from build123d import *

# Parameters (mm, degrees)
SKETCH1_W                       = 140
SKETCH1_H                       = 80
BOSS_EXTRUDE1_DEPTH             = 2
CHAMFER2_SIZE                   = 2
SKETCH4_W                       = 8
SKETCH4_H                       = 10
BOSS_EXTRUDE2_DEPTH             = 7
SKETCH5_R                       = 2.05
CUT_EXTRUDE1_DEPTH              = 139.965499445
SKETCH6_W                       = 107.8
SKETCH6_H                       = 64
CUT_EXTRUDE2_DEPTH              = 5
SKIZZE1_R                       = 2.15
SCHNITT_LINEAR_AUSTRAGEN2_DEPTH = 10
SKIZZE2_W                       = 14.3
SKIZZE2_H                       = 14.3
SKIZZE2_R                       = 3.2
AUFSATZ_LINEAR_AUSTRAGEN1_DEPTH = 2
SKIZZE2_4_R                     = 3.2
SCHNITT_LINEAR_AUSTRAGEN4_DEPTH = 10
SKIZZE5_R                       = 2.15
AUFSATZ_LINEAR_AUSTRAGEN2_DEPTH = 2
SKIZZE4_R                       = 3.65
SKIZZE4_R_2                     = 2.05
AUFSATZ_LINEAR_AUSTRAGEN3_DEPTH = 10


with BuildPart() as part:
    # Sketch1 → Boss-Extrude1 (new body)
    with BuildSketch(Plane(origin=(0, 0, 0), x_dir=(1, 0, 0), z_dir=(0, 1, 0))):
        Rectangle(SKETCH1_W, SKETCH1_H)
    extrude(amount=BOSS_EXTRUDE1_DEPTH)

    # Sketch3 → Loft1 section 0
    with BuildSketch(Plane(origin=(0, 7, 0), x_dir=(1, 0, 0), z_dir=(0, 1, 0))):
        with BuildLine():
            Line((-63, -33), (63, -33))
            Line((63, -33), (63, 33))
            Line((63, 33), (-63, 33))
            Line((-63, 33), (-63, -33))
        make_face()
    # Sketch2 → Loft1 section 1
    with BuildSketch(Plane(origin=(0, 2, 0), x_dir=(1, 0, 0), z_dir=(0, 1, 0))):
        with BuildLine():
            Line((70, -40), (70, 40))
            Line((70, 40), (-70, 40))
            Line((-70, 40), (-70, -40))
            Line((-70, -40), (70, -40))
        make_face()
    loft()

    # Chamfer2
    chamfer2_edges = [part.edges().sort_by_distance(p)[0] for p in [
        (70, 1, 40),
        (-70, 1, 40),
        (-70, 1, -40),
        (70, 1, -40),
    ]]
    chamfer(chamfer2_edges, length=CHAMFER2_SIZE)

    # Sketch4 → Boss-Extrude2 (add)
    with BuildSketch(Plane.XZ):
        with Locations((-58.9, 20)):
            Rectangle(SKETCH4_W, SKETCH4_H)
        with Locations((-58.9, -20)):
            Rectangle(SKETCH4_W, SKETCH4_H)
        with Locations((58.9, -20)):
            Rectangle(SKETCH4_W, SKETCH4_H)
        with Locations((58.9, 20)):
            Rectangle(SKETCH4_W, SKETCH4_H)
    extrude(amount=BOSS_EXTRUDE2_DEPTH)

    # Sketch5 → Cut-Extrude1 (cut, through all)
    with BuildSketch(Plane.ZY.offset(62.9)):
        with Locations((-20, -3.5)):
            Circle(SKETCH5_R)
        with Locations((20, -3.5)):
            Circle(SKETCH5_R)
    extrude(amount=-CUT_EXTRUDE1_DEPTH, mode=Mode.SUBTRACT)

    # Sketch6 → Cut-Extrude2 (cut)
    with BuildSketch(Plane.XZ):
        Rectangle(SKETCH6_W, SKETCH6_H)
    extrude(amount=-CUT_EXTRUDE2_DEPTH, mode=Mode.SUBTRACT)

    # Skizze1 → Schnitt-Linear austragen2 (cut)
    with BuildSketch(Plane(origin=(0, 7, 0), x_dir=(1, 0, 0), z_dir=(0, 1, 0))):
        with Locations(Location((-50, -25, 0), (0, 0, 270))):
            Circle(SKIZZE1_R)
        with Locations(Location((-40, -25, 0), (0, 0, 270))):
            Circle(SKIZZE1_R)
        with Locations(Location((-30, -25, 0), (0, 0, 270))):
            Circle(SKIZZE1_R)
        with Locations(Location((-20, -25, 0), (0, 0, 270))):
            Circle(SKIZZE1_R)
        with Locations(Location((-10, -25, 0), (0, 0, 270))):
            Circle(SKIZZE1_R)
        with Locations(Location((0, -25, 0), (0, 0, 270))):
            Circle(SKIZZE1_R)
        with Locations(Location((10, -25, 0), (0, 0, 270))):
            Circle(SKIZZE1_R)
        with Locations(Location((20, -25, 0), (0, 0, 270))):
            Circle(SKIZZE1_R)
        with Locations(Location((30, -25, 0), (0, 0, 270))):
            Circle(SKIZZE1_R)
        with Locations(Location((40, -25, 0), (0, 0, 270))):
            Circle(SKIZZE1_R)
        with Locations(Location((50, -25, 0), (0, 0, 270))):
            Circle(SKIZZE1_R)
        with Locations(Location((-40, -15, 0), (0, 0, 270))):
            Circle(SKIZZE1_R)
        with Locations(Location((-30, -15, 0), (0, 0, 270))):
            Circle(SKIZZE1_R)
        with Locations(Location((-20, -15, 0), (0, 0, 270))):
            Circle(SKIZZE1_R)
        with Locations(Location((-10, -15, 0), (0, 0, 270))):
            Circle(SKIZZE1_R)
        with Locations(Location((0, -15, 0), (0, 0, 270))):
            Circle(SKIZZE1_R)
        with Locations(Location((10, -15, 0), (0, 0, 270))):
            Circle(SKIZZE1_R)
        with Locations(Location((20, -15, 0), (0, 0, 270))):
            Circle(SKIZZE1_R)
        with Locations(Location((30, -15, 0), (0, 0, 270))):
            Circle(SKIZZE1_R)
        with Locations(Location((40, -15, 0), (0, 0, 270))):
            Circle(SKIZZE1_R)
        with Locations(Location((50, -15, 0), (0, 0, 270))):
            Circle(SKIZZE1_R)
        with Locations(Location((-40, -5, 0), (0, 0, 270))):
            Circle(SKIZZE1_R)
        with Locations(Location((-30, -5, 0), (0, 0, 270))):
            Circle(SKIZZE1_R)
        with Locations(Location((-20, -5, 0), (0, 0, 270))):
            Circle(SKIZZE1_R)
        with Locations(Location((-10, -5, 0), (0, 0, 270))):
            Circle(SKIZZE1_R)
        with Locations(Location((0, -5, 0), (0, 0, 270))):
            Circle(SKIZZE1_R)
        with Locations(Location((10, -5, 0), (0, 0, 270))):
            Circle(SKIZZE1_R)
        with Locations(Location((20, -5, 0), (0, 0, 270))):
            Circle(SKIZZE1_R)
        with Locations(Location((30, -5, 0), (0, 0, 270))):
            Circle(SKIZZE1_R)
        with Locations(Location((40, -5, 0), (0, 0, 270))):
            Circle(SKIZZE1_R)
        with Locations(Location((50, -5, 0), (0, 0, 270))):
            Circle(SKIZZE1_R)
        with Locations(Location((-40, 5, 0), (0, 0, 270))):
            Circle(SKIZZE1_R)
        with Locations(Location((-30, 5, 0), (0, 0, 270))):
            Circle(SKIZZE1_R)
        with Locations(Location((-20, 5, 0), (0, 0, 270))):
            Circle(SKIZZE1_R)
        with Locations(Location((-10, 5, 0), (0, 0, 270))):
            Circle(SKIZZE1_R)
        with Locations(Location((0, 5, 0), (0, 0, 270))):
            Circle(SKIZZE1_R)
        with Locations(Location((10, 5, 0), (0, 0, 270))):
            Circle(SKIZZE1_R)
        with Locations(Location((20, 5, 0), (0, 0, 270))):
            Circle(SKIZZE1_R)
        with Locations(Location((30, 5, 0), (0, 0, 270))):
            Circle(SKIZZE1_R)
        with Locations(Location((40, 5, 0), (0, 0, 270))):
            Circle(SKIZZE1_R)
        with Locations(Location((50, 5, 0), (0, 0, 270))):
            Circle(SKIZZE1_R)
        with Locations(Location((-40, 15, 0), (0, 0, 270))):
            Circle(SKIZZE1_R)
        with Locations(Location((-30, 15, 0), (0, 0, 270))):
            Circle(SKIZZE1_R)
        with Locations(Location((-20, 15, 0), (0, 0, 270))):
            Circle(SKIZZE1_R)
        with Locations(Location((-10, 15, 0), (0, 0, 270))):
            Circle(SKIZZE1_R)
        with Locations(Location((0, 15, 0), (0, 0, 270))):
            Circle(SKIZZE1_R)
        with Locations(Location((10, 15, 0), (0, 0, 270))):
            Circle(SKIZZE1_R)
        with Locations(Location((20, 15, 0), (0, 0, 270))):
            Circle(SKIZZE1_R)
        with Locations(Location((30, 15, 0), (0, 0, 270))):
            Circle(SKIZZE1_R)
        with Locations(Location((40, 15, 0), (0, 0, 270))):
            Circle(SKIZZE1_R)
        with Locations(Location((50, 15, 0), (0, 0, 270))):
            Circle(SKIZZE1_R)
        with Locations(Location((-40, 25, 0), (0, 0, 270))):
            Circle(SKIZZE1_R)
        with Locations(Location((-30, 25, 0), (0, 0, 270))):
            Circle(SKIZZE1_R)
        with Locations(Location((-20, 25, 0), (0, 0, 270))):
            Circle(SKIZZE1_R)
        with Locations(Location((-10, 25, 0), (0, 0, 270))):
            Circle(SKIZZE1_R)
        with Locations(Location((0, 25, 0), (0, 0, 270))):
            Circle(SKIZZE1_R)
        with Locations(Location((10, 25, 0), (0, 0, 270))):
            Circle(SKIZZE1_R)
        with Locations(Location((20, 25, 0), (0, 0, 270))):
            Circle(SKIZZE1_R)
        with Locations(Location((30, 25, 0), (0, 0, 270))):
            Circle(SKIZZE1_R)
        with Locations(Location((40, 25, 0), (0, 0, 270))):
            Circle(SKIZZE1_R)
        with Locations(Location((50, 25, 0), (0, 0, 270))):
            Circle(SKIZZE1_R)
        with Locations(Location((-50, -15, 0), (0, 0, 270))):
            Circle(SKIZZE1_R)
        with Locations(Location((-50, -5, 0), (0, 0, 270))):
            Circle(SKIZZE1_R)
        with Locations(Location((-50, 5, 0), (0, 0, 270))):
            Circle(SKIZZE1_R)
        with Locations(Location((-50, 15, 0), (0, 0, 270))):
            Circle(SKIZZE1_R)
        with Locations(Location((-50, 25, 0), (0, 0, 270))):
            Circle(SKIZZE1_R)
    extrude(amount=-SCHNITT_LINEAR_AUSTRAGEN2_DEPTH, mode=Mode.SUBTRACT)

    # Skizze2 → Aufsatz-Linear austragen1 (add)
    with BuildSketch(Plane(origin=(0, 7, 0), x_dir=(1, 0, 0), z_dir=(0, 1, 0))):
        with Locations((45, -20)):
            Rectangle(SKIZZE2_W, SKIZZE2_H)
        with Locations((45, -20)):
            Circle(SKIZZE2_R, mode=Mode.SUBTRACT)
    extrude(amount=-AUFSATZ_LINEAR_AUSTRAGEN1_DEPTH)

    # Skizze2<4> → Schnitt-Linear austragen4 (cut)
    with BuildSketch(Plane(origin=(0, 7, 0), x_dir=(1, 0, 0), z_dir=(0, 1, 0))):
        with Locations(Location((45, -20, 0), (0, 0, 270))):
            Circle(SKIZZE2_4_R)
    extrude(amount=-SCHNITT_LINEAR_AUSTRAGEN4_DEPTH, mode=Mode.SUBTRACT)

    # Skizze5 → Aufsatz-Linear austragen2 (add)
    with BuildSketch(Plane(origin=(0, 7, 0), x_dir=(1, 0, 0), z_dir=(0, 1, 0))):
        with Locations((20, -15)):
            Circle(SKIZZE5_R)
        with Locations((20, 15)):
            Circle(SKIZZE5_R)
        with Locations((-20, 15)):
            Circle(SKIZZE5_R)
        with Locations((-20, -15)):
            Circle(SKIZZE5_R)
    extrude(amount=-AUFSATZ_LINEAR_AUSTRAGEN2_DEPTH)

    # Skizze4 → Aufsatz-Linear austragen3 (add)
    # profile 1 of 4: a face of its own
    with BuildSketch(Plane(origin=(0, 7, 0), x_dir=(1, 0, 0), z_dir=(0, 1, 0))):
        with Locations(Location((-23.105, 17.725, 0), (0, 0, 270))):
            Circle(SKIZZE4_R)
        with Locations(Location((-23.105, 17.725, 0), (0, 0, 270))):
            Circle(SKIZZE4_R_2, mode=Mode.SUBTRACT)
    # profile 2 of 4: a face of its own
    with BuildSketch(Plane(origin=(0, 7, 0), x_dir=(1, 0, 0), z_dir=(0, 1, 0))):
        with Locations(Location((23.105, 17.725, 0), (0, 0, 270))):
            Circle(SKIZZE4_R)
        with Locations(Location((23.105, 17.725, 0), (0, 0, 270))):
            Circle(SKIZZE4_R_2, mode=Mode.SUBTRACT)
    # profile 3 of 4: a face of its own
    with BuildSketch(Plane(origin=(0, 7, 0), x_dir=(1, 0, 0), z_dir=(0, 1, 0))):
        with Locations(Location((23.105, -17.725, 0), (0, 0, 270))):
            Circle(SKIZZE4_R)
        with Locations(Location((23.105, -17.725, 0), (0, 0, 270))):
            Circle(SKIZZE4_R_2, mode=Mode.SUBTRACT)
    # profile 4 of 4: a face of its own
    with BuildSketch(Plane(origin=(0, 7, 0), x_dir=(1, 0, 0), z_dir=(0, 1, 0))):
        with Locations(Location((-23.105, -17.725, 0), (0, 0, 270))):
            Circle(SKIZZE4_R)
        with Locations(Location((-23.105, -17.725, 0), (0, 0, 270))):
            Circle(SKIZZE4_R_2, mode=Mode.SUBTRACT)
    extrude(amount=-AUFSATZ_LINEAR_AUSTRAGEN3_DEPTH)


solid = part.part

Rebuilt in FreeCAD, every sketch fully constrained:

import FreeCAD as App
import Part
import Sketcher

V = App.Vector


def edges_at(feature, points):
    """Names of the edges that pass closest to the given points."""
    edges = feature.Shape.Edges
    near = lambda p: min(range(len(edges)), key=lambda i: edges[i].distToShape(Part.Vertex(*p))[0])
    return sorted({f"Edge{near(p) + 1}" for p in points})


def add_polygon(sketch, points):
    """Adds a closed chain of lines whose ends are joined by coincident constraints."""
    first, n = sketch.GeometryCount, len(points)
    for a, b in zip(points, points[1:] + points[:1]):
        sketch.addGeometry(Part.LineSegment(App.Vector(*a, 0), App.Vector(*b, 0)), False)
    for i in range(n):
        sketch.addConstraint(Sketcher.Constraint("Coincident", first + i, 2, first + (i + 1) % n, 1))

doc = App.newDocument("Part")
body = doc.addObject("PartDesign::Body", "Body")

sketch1 = body.newObject("Sketcher::SketchObject", "Sketch")
sketch1.AttachmentSupport = (doc.getObject("XZ_Plane"), [""])
sketch1.MapMode = "FlatFace"
add_polygon(sketch1, [(-70, -40), (-70, 40), (70, 40), (70, -40)])
sketch1.addConstraint([
    Sketcher.Constraint("Vertical", 0),
    Sketcher.Constraint("Horizontal", 1),
    Sketcher.Constraint("Vertical", 2),
    Sketcher.Constraint("Horizontal", 3),
    Sketcher.Constraint("Symmetric", 0, 2, 2, 2, -1, 1),
    Sketcher.Constraint("DistanceX", 1, 1, 1, 2, 140.0),
    Sketcher.Constraint("DistanceY", 0, 1, 0, 2, 80.0),
])
pad1 = body.newObject("PartDesign::Pad", "Pad")
pad1.Profile = sketch1
pad1.Length = 2
pad1.Reversed = True

sketch2 = body.newObject("Sketcher::SketchObject", "Sketch001")
sketch2.AttachmentSupport = (doc.getObject("XZ_Plane"), [""])
sketch2.MapMode = "FlatFace"
sketch2.AttachmentOffset = App.Placement(V(0, 0, -7), App.Rotation())
add_polygon(sketch2, [(-63, 33), (63, 33), (63, -33), (-63, -33)])
sketch2.addConstraint([
    Sketcher.Constraint("Horizontal", 0),
    Sketcher.Constraint("Vertical", 1),
    Sketcher.Constraint("Horizontal", 2),
    Sketcher.Constraint("Vertical", 3),
    Sketcher.Constraint("Symmetric", 0, 2, 2, 2, -1, 1),
    Sketcher.Constraint("DistanceX", 0, 1, 0, 2, 126.0),
    Sketcher.Constraint("DistanceY", 1, 2, 1, 1, 66.0),
])

sketch3 = body.newObject("Sketcher::SketchObject", "Sketch002")
sketch3.AttachmentSupport = (doc.getObject("XZ_Plane"), [""])
sketch3.MapMode = "FlatFace"
sketch3.AttachmentOffset = App.Placement(V(0, 0, -2), App.Rotation())
add_polygon(sketch3, [(70, 40), (70, -40), (-70, -40), (-70, 40)])
sketch3.addConstraint([
    Sketcher.Constraint("Vertical", 0),
    Sketcher.Constraint("Horizontal", 1),
    Sketcher.Constraint("Vertical", 2),
    Sketcher.Constraint("Horizontal", 3),
    Sketcher.Constraint("Symmetric", 0, 2, 2, 2, -1, 1),
    Sketcher.Constraint("DistanceX", 1, 2, 1, 1, 140.0),
    Sketcher.Constraint("DistanceY", 0, 2, 0, 1, 80.0),
])

additiveloft = body.newObject("PartDesign::AdditiveLoft", "AdditiveLoft")
additiveloft.Profile = sketch2
additiveloft.Sections = [sketch3]
doc.recompute()

chamfer = body.newObject("PartDesign::Chamfer", "Chamfer")
chamfer.Base = (additiveloft, edges_at(additiveloft, [
    (70, 1, 40),
    (-70, 1, 40),
    (-70, 1, -40),
    (70, 1, -40),
]))
chamfer.Size = 2

sketch4 = body.newObject("Sketcher::SketchObject", "Sketch003")
sketch4.AttachmentSupport = (doc.getObject("XZ_Plane"), [""])
sketch4.MapMode = "FlatFace"
add_polygon(sketch4, [(-63, 25), (-63, 15), (-55, 15), (-55, 25)])
add_polygon(sketch4, [(-63, -15), (-63, -25), (-55, -25), (-55, -15)])
add_polygon(sketch4, [(55, -15), (55, -25), (63, -25), (63, -15)])
add_polygon(sketch4, [(55, 25), (55, 15), (63, 15), (63, 25)])
sketch4.addConstraint([
    Sketcher.Constraint("Vertical", 0),
    Sketcher.Constraint("Horizontal", 1),
    Sketcher.Constraint("Vertical", 2),
    Sketcher.Constraint("Horizontal", 3),
    Sketcher.Constraint("Vertical", 4),
    Sketcher.Constraint("Horizontal", 5),
    Sketcher.Constraint("Vertical", 6),
    Sketcher.Constraint("Horizontal", 7),
    Sketcher.Constraint("Vertical", 8),
    Sketcher.Constraint("Horizontal", 9),
    Sketcher.Constraint("Vertical", 10),
    Sketcher.Constraint("Horizontal", 11),
    Sketcher.Constraint("Vertical", 12),
    Sketcher.Constraint("Horizontal", 13),
    Sketcher.Constraint("Vertical", 14),
    Sketcher.Constraint("Horizontal", 15),
    Sketcher.Constraint("Symmetric", 2, 2, 8, 2, -1, 1),
    Sketcher.Constraint("Symmetric", 0, 2, 10, 2, -1, 1),
    Sketcher.Constraint("Symmetric", 6, 2, 12, 2, -1, 1),
    Sketcher.Constraint("Symmetric", 4, 2, 14, 2, -1, 1),
    Sketcher.Constraint("Symmetric", 5, 2, 8, 2, -2),
    Sketcher.Constraint("Symmetric", 7, 2, 10, 2, -2),
    Sketcher.Constraint("DistanceX", 1, 1, 1, 2, 8.0),
    Sketcher.Constraint("DistanceY", 0, 2, 0, 1, 10.0),
    Sketcher.Constraint("DistanceY", -1, 1, 0, 2, 15.0),
    Sketcher.Constraint("DistanceX", 0, 2, -1, 1, 62.9),
])
pad2 = body.newObject("PartDesign::Pad", "Pad001")
pad2.Profile = sketch4
pad2.Length = 7

sketch5 = body.newObject("Sketcher::SketchObject", "Sketch004")
sketch5.AttachmentSupport = (doc.getObject("YZ_Plane"), [""])
sketch5.MapMode = "FlatFace"
sketch5.AttachmentOffset = App.Placement(V(0, 0, -62.9), App.Rotation())
sketch5.addGeometry([
    Part.Circle(V(-3.5, -20, 0), V(0, 0, 1), 2),
    Part.Circle(V(-3.5, 20, 0), V(0, 0, 1), 2),
], False)
sketch5.addConstraint([
    Sketcher.Constraint("Equal", 0, 1),
    Sketcher.Constraint("Symmetric", 0, 3, 1, 3, -1),
    Sketcher.Constraint("Diameter", 0, 4.1),
    Sketcher.Constraint("DistanceY", 0, 3, -1, 1, 20.0),
    Sketcher.Constraint("DistanceX", 0, 3, -1, 1, 3.5),
])
pocket1 = body.newObject("PartDesign::Pocket", "Pocket")
pocket1.Profile = sketch5
pocket1.Type = "ThroughAll"
pocket1.Reversed = True

sketch6 = body.newObject("Sketcher::SketchObject", "Sketch005")
sketch6.AttachmentSupport = (doc.getObject("XZ_Plane"), [""])
sketch6.MapMode = "FlatFace"
add_polygon(sketch6, [(-54, 32), (-54, -32), (54, -32), (54, 32)])
sketch6.addConstraint([
    Sketcher.Constraint("Vertical", 0),
    Sketcher.Constraint("Horizontal", 1),
    Sketcher.Constraint("Vertical", 2),
    Sketcher.Constraint("Horizontal", 3),
    Sketcher.Constraint("Symmetric", 0, 2, 2, 2, -1, 1),
    Sketcher.Constraint("DistanceY", 0, 2, 0, 1, 64.0),
    Sketcher.Constraint("DistanceX", 1, 1, 1, 2, 107.8),
])
pocket2 = body.newObject("PartDesign::Pocket", "Pocket001")
pocket2.Profile = sketch6
pocket2.Length = 5

sketch7 = body.newObject("Sketcher::SketchObject", "Sketch006")
sketch7.AttachmentSupport = (doc.getObject("XZ_Plane"), [""])
sketch7.MapMode = "FlatFace"
sketch7.AttachmentOffset = App.Placement(V(0, 0, -7), App.Rotation())
sketch7.addGeometry([
    Part.Circle(V(-50, 25, 0), V(0, 0, 1), 2.1),
    Part.Circle(V(-40, 25, 0), V(0, 0, 1), 2.1),
    Part.Circle(V(-30, 25, 0), V(0, 0, 1), 2.1),
    Part.Circle(V(-20, 25, 0), V(0, 0, 1), 2.1),
    Part.Circle(V(-10, 25, 0), V(0, 0, 1), 2.1),
    Part.Circle(V(0, 25, 0), V(0, 0, 1), 2.1),
    Part.Circle(V(10, 25, 0), V(0, 0, 1), 2.1),
    Part.Circle(V(20, 25, 0), V(0, 0, 1), 2.1),
    Part.Circle(V(30, 25, 0), V(0, 0, 1), 2.1),
    Part.Circle(V(40, 25, 0), V(0, 0, 1), 2.1),
    Part.Circle(V(50, 25, 0), V(0, 0, 1), 2.1),
    Part.Circle(V(-40, 15, 0), V(0, 0, 1), 2.1),
    Part.Circle(V(-30, 15, 0), V(0, 0, 1), 2.1),
    Part.Circle(V(-20, 15, 0), V(0, 0, 1), 2.1),
    Part.Circle(V(-10, 15, 0), V(0, 0, 1), 2.1),
    Part.Circle(V(0, 15, 0), V(0, 0, 1), 2.1),
    Part.Circle(V(10, 15, 0), V(0, 0, 1), 2.1),
    Part.Circle(V(20, 15, 0), V(0, 0, 1), 2.1),
    Part.Circle(V(30, 15, 0), V(0, 0, 1), 2.1),
    Part.Circle(V(40, 15, 0), V(0, 0, 1), 2.1),
    Part.Circle(V(50, 15, 0), V(0, 0, 1), 2.1),
    Part.Circle(V(-40, 5, 0), V(0, 0, 1), 2.1),
    Part.Circle(V(-30, 5, 0), V(0, 0, 1), 2.1),
    Part.Circle(V(-20, 5, 0), V(0, 0, 1), 2.1),
    Part.Circle(V(-10, 5, 0), V(0, 0, 1), 2.1),
    Part.Circle(V(0, 5, 0), V(0, 0, 1), 2.1),
    Part.Circle(V(10, 5, 0), V(0, 0, 1), 2.1),
    Part.Circle(V(20, 5, 0), V(0, 0, 1), 2.1),
    Part.Circle(V(30, 5, 0), V(0, 0, 1), 2.1),
    Part.Circle(V(40, 5, 0), V(0, 0, 1), 2.1),
    Part.Circle(V(50, 5, 0), V(0, 0, 1), 2.1),
    Part.Circle(V(-40, -5, 0), V(0, 0, 1), 2.1),
    Part.Circle(V(-30, -5, 0), V(0, 0, 1), 2.1),
    Part.Circle(V(-20, -5, 0), V(0, 0, 1), 2.1),
    Part.Circle(V(-10, -5, 0), V(0, 0, 1), 2.1),
    Part.Circle(V(0, -5, 0), V(0, 0, 1), 2.1),
    Part.Circle(V(10, -5, 0), V(0, 0, 1), 2.1),
    Part.Circle(V(20, -5, 0), V(0, 0, 1), 2.1),
    Part.Circle(V(30, -5, 0), V(0, 0, 1), 2.1),
    Part.Circle(V(40, -5, 0), V(0, 0, 1), 2.1),
    Part.Circle(V(50, -5, 0), V(0, 0, 1), 2.1),
    Part.Circle(V(-40, -15, 0), V(0, 0, 1), 2.1),
    Part.Circle(V(-30, -15, 0), V(0, 0, 1), 2.1),
    Part.Circle(V(-20, -15, 0), V(0, 0, 1), 2.1),
    Part.Circle(V(-10, -15, 0), V(0, 0, 1), 2.1),
    Part.Circle(V(0, -15, 0), V(0, 0, 1), 2.1),
    Part.Circle(V(10, -15, 0), V(0, 0, 1), 2.1),
    Part.Circle(V(20, -15, 0), V(0, 0, 1), 2.1),
    Part.Circle(V(30, -15, 0), V(0, 0, 1), 2.1),
    Part.Circle(V(40, -15, 0), V(0, 0, 1), 2.1),
    Part.Circle(V(50, -15, 0), V(0, 0, 1), 2.1),
    Part.Circle(V(-40, -25, 0), V(0, 0, 1), 2.1),
    Part.Circle(V(-30, -25, 0), V(0, 0, 1), 2.1),
    Part.Circle(V(-20, -25, 0), V(0, 0, 1), 2.1),
    Part.Circle(V(-10, -25, 0), V(0, 0, 1), 2.1),
    Part.Circle(V(0, -25, 0), V(0, 0, 1), 2.1),
    Part.Circle(V(10, -25, 0), V(0, 0, 1), 2.1),
    Part.Circle(V(20, -25, 0), V(0, 0, 1), 2.1),
    Part.Circle(V(30, -25, 0), V(0, 0, 1), 2.1),
    Part.Circle(V(40, -25, 0), V(0, 0, 1), 2.1),
    Part.Circle(V(50, -25, 0), V(0, 0, 1), 2.1),
    Part.Circle(V(-50, 15, 0), V(0, 0, 1), 2.1),
    Part.Circle(V(-50, 5, 0), V(0, 0, 1), 2.1),
    Part.Circle(V(-50, -5, 0), V(0, 0, 1), 2.1),
    Part.Circle(V(-50, -15, 0), V(0, 0, 1), 2.1),
    Part.Circle(V(-50, -25, 0), V(0, 0, 1), 2.1),
], False)
sketch7.addConstraint([
    Sketcher.Constraint("Equal", 0, 1),
    Sketcher.Constraint("Equal", 1, 2),
    Sketcher.Constraint("Equal", 2, 3),
    Sketcher.Constraint("Equal", 3, 4),
    Sketcher.Constraint("Equal", 4, 5),
    Sketcher.Constraint("Equal", 5, 6),
    Sketcher.Constraint("Equal", 6, 7),
    Sketcher.Constraint("Equal", 7, 8),
    Sketcher.Constraint("Equal", 8, 9),
    Sketcher.Constraint("Equal", 9, 10),
    Sketcher.Constraint("Equal", 10, 11),
    Sketcher.Constraint("Equal", 11, 12),
    Sketcher.Constraint("Equal", 12, 13),
    Sketcher.Constraint("Equal", 13, 14),
    Sketcher.Constraint("Equal", 14, 15),
    Sketcher.Constraint("Equal", 15, 16),
    Sketcher.Constraint("Equal", 16, 17),
    Sketcher.Constraint("Equal", 17, 18),
    Sketcher.Constraint("Equal", 18, 19),
    Sketcher.Constraint("Equal", 19, 20),
    Sketcher.Constraint("Equal", 20, 21),
    Sketcher.Constraint("Equal", 21, 22),
    Sketcher.Constraint("Equal", 22, 23),
    Sketcher.Constraint("Equal", 23, 24),
    Sketcher.Constraint("Equal", 24, 25),
    Sketcher.Constraint("Equal", 25, 26),
    Sketcher.Constraint("Equal", 26, 27),
    Sketcher.Constraint("Equal", 27, 28),
    Sketcher.Constraint("Equal", 28, 29),
    Sketcher.Constraint("Equal", 29, 30),
    Sketcher.Constraint("Equal", 30, 31),
    Sketcher.Constraint("Equal", 31, 32),
    Sketcher.Constraint("Equal", 32, 33),
    Sketcher.Constraint("Equal", 33, 34),
    Sketcher.Constraint("Equal", 34, 35),
    Sketcher.Constraint("Equal", 35, 36),
    Sketcher.Constraint("Equal", 36, 37),
    Sketcher.Constraint("Equal", 37, 38),
    Sketcher.Constraint("Equal", 38, 39),
    Sketcher.Constraint("Equal", 39, 40),
    Sketcher.Constraint("Equal", 40, 41),
    Sketcher.Constraint("Equal", 41, 42),
    Sketcher.Constraint("Equal", 42, 43),
    Sketcher.Constraint("Equal", 43, 44),
    Sketcher.Constraint("Equal", 44, 45),
    Sketcher.Constraint("Equal", 45, 46),
    Sketcher.Constraint("Equal", 46, 47),
    Sketcher.Constraint("Equal", 47, 48),
    Sketcher.Constraint("Equal", 48, 49),
    Sketcher.Constraint("Equal", 49, 50),
    Sketcher.Constraint("Equal", 50, 51),
    Sketcher.Constraint("Equal", 51, 52),
    Sketcher.Constraint("Equal", 52, 53),
    Sketcher.Constraint("Equal", 53, 54),
    Sketcher.Constraint("Equal", 54, 55),
    Sketcher.Constraint("Equal", 55, 56),
    Sketcher.Constraint("Equal", 56, 57),
    Sketcher.Constraint("Equal", 57, 58),
    Sketcher.Constraint("Equal", 58, 59),
    Sketcher.Constraint("Equal", 59, 60),
    Sketcher.Constraint("Equal", 60, 61),
    Sketcher.Constraint("Equal", 61, 62),
    Sketcher.Constraint("Equal", 62, 63),
    Sketcher.Constraint("Equal", 63, 64),
    Sketcher.Constraint("Equal", 64, 65),
    Sketcher.Constraint("Symmetric", 29, 3, 31, 3, -1, 1),
    Sketcher.Constraint("Symmetric", 28, 3, 32, 3, -1, 1),
    Sketcher.Constraint("Symmetric", 27, 3, 33, 3, -1, 1),
    Sketcher.Constraint("Symmetric", 26, 3, 34, 3, -1, 1),
    Sketcher.Constraint("Symmetric", 25, 3, 35, 3, -1, 1),
    Sketcher.Constraint("Symmetric", 24, 3, 36, 3, -1, 1),
    Sketcher.Constraint("Symmetric", 23, 3, 37, 3, -1, 1),
    Sketcher.Constraint("Symmetric", 22, 3, 38, 3, -1, 1),
    Sketcher.Constraint("Symmetric", 21, 3, 39, 3, -1, 1),
    Sketcher.Constraint("Symmetric", 19, 3, 41, 3, -1, 1),
    Sketcher.Constraint("Symmetric", 18, 3, 42, 3, -1, 1),
    Sketcher.Constraint("Symmetric", 17, 3, 43, 3, -1, 1),
    Sketcher.Constraint("Symmetric", 16, 3, 44, 3, -1, 1),
    Sketcher.Constraint("Symmetric", 15, 3, 45, 3, -1, 1),
    Sketcher.Constraint("Symmetric", 14, 3, 46, 3, -1, 1),
    Sketcher.Constraint("Symmetric", 13, 3, 47, 3, -1, 1),
    Sketcher.Constraint("Symmetric", 12, 3, 48, 3, -1, 1),
    Sketcher.Constraint("Symmetric", 11, 3, 49, 3, -1, 1),
    Sketcher.Constraint("Symmetric", 9, 3, 51, 3, -1, 1),
    Sketcher.Constraint("Symmetric", 8, 3, 52, 3, -1, 1),
    Sketcher.Constraint("Symmetric", 7, 3, 53, 3, -1, 1),
    Sketcher.Constraint("Symmetric", 6, 3, 54, 3, -1, 1),
    Sketcher.Constraint("Symmetric", 5, 3, 55, 3, -1, 1),
    Sketcher.Constraint("Symmetric", 4, 3, 56, 3, -1, 1),
    Sketcher.Constraint("Symmetric", 3, 3, 57, 3, -1, 1),
    Sketcher.Constraint("Symmetric", 2, 3, 58, 3, -1, 1),
    Sketcher.Constraint("Symmetric", 1, 3, 59, 3, -1, 1),
    Sketcher.Constraint("Symmetric", 0, 3, 60, 3, -1, 1),
    Sketcher.Constraint("Symmetric", 50, 3, 61, 3, -1, 1),
    Sketcher.Constraint("Symmetric", 40, 3, 62, 3, -1, 1),
    Sketcher.Constraint("Symmetric", 30, 3, 63, 3, -1, 1),
    Sketcher.Constraint("Symmetric", 20, 3, 64, 3, -1, 1),
    Sketcher.Constraint("Symmetric", 10, 3, 65, 3, -1, 1),
    Sketcher.Constraint("Symmetric", 4, 3, 6, 3, -2),
    Sketcher.Constraint("Symmetric", 3, 3, 7, 3, -2),
    Sketcher.Constraint("Symmetric", 2, 3, 8, 3, -2),
    Sketcher.Constraint("Symmetric", 1, 3, 9, 3, -2),
    Sketcher.Constraint("Symmetric", 0, 3, 10, 3, -2),
    Sketcher.Constraint("Symmetric", 14, 3, 16, 3, -2),
    Sketcher.Constraint("Symmetric", 13, 3, 17, 3, -2),
    Sketcher.Constraint("Symmetric", 12, 3, 18, 3, -2),
    Sketcher.Constraint("Symmetric", 11, 3, 19, 3, -2),
    Sketcher.Constraint("Symmetric", 24, 3, 26, 3, -2),
    Sketcher.Constraint("Symmetric", 23, 3, 27, 3, -2),
    Sketcher.Constraint("Symmetric", 22, 3, 28, 3, -2),
    Sketcher.Constraint("Symmetric", 21, 3, 29, 3, -2),
    Sketcher.Constraint("Symmetric", 20, 3, 61, 3, -2),
    Sketcher.Constraint("Symmetric", 30, 3, 62, 3, -2),
    Sketcher.Constraint("PointOnObject", 5, 3, -2),
    Sketcher.Constraint("PointOnObject", 15, 3, -2),
    Sketcher.Constraint("PointOnObject", 25, 3, -2),
    Sketcher.Constraint("Horizontal", 0, 3, 1, 3),
    Sketcher.Constraint("Horizontal", 1, 3, 2, 3),
    Sketcher.Constraint("Horizontal", 2, 3, 3, 3),
    Sketcher.Constraint("Horizontal", 3, 3, 4, 3),
    Sketcher.Constraint("Horizontal", 4, 3, 5, 3),
    Sketcher.Constraint("Horizontal", 11, 3, 12, 3),
    Sketcher.Constraint("Horizontal", 12, 3, 13, 3),
    Sketcher.Constraint("Horizontal", 13, 3, 14, 3),
    Sketcher.Constraint("Horizontal", 14, 3, 15, 3),
    Sketcher.Constraint("Horizontal", 19, 3, 20, 3),
    Sketcher.Constraint("Horizontal", 21, 3, 22, 3),
    Sketcher.Constraint("Horizontal", 22, 3, 23, 3),
    Sketcher.Constraint("Horizontal", 23, 3, 24, 3),
    Sketcher.Constraint("Horizontal", 24, 3, 25, 3),
    Sketcher.Constraint("Horizontal", 29, 3, 30, 3),
    Sketcher.Constraint("Vertical", 1, 3, 11, 3),
    Sketcher.Constraint("Vertical", 2, 3, 12, 3),
    Sketcher.Constraint("Vertical", 3, 3, 13, 3),
    Sketcher.Constraint("Vertical", 4, 3, 14, 3),
    Sketcher.Constraint("Vertical", 10, 3, 20, 3),
    Sketcher.Constraint("Vertical", 11, 3, 21, 3),
    Sketcher.Constraint("Vertical", 12, 3, 22, 3),
    Sketcher.Constraint("Vertical", 13, 3, 23, 3),
    Sketcher.Constraint("Vertical", 14, 3, 24, 3),
    Sketcher.Constraint("Vertical", 20, 3, 30, 3),
    Sketcher.Constraint("Diameter", 0, 4.3),
    Sketcher.Constraint("DistanceX", 0, 3, -1, 1, 50.0),
    Sketcher.Constraint("DistanceY", -1, 1, 0, 3, 25.0),
    Sketcher.Constraint("DistanceX", 1, 3, -1, 1, 40.0),
    Sketcher.Constraint("DistanceX", 2, 3, -1, 1, 30.0),
    Sketcher.Constraint("DistanceX", 3, 3, -1, 1, 20.0),
    Sketcher.Constraint("DistanceX", 4, 3, -1, 1, 10.0),
    Sketcher.Constraint("DistanceY", -1, 1, 11, 3, 15.0),
    Sketcher.Constraint("DistanceY", -1, 1, 21, 3, 5.0),
])
pocket3 = body.newObject("PartDesign::Pocket", "Pocket002")
pocket3.Profile = sketch7
pocket3.Length = 10
pocket3.Reversed = True

sketch8 = body.newObject("Sketcher::SketchObject", "Sketch007")
sketch8.AttachmentSupport = (doc.getObject("XZ_Plane"), [""])
sketch8.MapMode = "FlatFace"
sketch8.AttachmentOffset = App.Placement(V(0, 0, -7), App.Rotation())
add_polygon(sketch8, [(37.9, 12.8), (37.9, 27.1), (52.1, 27.1), (52.1, 12.8)])
sketch8.addGeometry(Part.Circle(V(45, 20, 0), V(0, 0, 1), 3.2), False)
sketch8.addConstraint([
    Sketcher.Constraint("Vertical", 0),
    Sketcher.Constraint("Horizontal", 1),
    Sketcher.Constraint("Vertical", 2),
    Sketcher.Constraint("Horizontal", 3),
    Sketcher.Constraint("Equal", 3, 0),
    Sketcher.Constraint("Diameter", 4, 6.4),
    Sketcher.Constraint("DistanceX", 1, 1, 1, 2, 14.3),
    Sketcher.Constraint("DistanceX", -1, 1, 4, 3, 45.0),
    Sketcher.Constraint("DistanceY", -1, 1, 4, 3, 20.0),
    Sketcher.Constraint("DistanceX", -1, 1, 0, 2, 37.85),
    Sketcher.Constraint("DistanceY", -1, 1, 0, 2, 27.15),
])
pad3 = body.newObject("PartDesign::Pad", "Pad002")
pad3.Profile = sketch8
pad3.Length = 2

sketch9 = body.newObject("Sketcher::SketchObject", "Sketch008")
sketch9.AttachmentSupport = (doc.getObject("XZ_Plane"), [""])
sketch9.MapMode = "FlatFace"
sketch9.AttachmentOffset = App.Placement(V(0, 0, -7), App.Rotation())
sketch9.addGeometry(Part.Circle(V(45, 20, 0), V(0, 0, 1), 3.2), False)
sketch9.addConstraint([
    Sketcher.Constraint("Diameter", 0, 6.4),
    Sketcher.Constraint("DistanceX", -1, 1, 0, 3, 45.0),
    Sketcher.Constraint("DistanceY", -1, 1, 0, 3, 20.0),
])
pocket4 = body.newObject("PartDesign::Pocket", "Pocket003")
pocket4.Profile = sketch9
pocket4.Length = 10
pocket4.Reversed = True

sketch10 = body.newObject("Sketcher::SketchObject", "Sketch009")
sketch10.AttachmentSupport = (doc.getObject("XZ_Plane"), [""])
sketch10.MapMode = "FlatFace"
sketch10.AttachmentOffset = App.Placement(V(0, 0, -7), App.Rotation())
sketch10.addGeometry([
    Part.Circle(V(20, 15, 0), V(0, 0, 1), 2.1),
    Part.Circle(V(20, -15, 0), V(0, 0, 1), 2.1),
    Part.Circle(V(-20, -15, 0), V(0, 0, 1), 2.1),
    Part.Circle(V(-20, 15, 0), V(0, 0, 1), 2.1),
], False)
sketch10.addConstraint([
    Sketcher.Constraint("Equal", 0, 1),
    Sketcher.Constraint("Equal", 1, 2),
    Sketcher.Constraint("Equal", 2, 3),
    Sketcher.Constraint("Symmetric", 0, 3, 2, 3, -1, 1),
    Sketcher.Constraint("Symmetric", 1, 3, 3, 3, -1, 1),
    Sketcher.Constraint("Symmetric", 1, 3, 2, 3, -2),
    Sketcher.Constraint("Diameter", 0, 4.3),
    Sketcher.Constraint("DistanceX", -1, 1, 0, 3, 20.0),
    Sketcher.Constraint("DistanceY", -1, 1, 0, 3, 15.0),
])
pad4 = body.newObject("PartDesign::Pad", "Pad003")
pad4.Profile = sketch10
pad4.Length = 2

sketch11 = body.newObject("Sketcher::SketchObject", "Sketch010")
sketch11.AttachmentSupport = (doc.getObject("XZ_Plane"), [""])
sketch11.MapMode = "FlatFace"
sketch11.AttachmentOffset = App.Placement(V(0, 0, -7), App.Rotation())
sketch11.addGeometry([
    Part.Circle(V(-23.1, -17.7, 0), V(0, 0, 1), 3.6),
    Part.Circle(V(-23.1, -17.7, 0), V(0, 0, 1), 2),
    Part.Circle(V(23.1, -17.7, 0), V(0, 0, 1), 3.6),
    Part.Circle(V(23.1, -17.7, 0), V(0, 0, 1), 2),
    Part.Circle(V(23.1, 17.7, 0), V(0, 0, 1), 3.6),
    Part.Circle(V(23.1, 17.7, 0), V(0, 0, 1), 2),
    Part.Circle(V(-23.1, 17.7, 0), V(0, 0, 1), 3.6),
    Part.Circle(V(-23.1, 17.7, 0), V(0, 0, 1), 2),
], False)
sketch11.addConstraint([
    Sketcher.Constraint("Coincident", 1, 3, 0, 3),
    Sketcher.Constraint("Coincident", 3, 3, 2, 3),
    Sketcher.Constraint("Coincident", 5, 3, 4, 3),
    Sketcher.Constraint("Coincident", 7, 3, 6, 3),
    Sketcher.Constraint("Equal", 0, 2),
    Sketcher.Constraint("Equal", 1, 3),
    Sketcher.Constraint("Equal", 2, 4),
    Sketcher.Constraint("Equal", 3, 5),
    Sketcher.Constraint("Equal", 4, 6),
    Sketcher.Constraint("Equal", 5, 7),
    Sketcher.Constraint("Symmetric", 0, 3, 4, 3, -1, 1),
    Sketcher.Constraint("Symmetric", 2, 3, 6, 3, -1, 1),
    Sketcher.Constraint("Symmetric", 0, 3, 2, 3, -2),
    Sketcher.Constraint("Diameter", 0, 7.3),
    Sketcher.Constraint("Diameter", 1, 4.1),
    Sketcher.Constraint("DistanceX", 0, 3, 2, 3, 46.21),
    Sketcher.Constraint("DistanceY", 2, 3, 4, 3, 35.45),
])
pad5 = body.newObject("PartDesign::Pad", "Pad004")
pad5.Profile = sketch11
pad5.Length = 10

doc.recompute()
